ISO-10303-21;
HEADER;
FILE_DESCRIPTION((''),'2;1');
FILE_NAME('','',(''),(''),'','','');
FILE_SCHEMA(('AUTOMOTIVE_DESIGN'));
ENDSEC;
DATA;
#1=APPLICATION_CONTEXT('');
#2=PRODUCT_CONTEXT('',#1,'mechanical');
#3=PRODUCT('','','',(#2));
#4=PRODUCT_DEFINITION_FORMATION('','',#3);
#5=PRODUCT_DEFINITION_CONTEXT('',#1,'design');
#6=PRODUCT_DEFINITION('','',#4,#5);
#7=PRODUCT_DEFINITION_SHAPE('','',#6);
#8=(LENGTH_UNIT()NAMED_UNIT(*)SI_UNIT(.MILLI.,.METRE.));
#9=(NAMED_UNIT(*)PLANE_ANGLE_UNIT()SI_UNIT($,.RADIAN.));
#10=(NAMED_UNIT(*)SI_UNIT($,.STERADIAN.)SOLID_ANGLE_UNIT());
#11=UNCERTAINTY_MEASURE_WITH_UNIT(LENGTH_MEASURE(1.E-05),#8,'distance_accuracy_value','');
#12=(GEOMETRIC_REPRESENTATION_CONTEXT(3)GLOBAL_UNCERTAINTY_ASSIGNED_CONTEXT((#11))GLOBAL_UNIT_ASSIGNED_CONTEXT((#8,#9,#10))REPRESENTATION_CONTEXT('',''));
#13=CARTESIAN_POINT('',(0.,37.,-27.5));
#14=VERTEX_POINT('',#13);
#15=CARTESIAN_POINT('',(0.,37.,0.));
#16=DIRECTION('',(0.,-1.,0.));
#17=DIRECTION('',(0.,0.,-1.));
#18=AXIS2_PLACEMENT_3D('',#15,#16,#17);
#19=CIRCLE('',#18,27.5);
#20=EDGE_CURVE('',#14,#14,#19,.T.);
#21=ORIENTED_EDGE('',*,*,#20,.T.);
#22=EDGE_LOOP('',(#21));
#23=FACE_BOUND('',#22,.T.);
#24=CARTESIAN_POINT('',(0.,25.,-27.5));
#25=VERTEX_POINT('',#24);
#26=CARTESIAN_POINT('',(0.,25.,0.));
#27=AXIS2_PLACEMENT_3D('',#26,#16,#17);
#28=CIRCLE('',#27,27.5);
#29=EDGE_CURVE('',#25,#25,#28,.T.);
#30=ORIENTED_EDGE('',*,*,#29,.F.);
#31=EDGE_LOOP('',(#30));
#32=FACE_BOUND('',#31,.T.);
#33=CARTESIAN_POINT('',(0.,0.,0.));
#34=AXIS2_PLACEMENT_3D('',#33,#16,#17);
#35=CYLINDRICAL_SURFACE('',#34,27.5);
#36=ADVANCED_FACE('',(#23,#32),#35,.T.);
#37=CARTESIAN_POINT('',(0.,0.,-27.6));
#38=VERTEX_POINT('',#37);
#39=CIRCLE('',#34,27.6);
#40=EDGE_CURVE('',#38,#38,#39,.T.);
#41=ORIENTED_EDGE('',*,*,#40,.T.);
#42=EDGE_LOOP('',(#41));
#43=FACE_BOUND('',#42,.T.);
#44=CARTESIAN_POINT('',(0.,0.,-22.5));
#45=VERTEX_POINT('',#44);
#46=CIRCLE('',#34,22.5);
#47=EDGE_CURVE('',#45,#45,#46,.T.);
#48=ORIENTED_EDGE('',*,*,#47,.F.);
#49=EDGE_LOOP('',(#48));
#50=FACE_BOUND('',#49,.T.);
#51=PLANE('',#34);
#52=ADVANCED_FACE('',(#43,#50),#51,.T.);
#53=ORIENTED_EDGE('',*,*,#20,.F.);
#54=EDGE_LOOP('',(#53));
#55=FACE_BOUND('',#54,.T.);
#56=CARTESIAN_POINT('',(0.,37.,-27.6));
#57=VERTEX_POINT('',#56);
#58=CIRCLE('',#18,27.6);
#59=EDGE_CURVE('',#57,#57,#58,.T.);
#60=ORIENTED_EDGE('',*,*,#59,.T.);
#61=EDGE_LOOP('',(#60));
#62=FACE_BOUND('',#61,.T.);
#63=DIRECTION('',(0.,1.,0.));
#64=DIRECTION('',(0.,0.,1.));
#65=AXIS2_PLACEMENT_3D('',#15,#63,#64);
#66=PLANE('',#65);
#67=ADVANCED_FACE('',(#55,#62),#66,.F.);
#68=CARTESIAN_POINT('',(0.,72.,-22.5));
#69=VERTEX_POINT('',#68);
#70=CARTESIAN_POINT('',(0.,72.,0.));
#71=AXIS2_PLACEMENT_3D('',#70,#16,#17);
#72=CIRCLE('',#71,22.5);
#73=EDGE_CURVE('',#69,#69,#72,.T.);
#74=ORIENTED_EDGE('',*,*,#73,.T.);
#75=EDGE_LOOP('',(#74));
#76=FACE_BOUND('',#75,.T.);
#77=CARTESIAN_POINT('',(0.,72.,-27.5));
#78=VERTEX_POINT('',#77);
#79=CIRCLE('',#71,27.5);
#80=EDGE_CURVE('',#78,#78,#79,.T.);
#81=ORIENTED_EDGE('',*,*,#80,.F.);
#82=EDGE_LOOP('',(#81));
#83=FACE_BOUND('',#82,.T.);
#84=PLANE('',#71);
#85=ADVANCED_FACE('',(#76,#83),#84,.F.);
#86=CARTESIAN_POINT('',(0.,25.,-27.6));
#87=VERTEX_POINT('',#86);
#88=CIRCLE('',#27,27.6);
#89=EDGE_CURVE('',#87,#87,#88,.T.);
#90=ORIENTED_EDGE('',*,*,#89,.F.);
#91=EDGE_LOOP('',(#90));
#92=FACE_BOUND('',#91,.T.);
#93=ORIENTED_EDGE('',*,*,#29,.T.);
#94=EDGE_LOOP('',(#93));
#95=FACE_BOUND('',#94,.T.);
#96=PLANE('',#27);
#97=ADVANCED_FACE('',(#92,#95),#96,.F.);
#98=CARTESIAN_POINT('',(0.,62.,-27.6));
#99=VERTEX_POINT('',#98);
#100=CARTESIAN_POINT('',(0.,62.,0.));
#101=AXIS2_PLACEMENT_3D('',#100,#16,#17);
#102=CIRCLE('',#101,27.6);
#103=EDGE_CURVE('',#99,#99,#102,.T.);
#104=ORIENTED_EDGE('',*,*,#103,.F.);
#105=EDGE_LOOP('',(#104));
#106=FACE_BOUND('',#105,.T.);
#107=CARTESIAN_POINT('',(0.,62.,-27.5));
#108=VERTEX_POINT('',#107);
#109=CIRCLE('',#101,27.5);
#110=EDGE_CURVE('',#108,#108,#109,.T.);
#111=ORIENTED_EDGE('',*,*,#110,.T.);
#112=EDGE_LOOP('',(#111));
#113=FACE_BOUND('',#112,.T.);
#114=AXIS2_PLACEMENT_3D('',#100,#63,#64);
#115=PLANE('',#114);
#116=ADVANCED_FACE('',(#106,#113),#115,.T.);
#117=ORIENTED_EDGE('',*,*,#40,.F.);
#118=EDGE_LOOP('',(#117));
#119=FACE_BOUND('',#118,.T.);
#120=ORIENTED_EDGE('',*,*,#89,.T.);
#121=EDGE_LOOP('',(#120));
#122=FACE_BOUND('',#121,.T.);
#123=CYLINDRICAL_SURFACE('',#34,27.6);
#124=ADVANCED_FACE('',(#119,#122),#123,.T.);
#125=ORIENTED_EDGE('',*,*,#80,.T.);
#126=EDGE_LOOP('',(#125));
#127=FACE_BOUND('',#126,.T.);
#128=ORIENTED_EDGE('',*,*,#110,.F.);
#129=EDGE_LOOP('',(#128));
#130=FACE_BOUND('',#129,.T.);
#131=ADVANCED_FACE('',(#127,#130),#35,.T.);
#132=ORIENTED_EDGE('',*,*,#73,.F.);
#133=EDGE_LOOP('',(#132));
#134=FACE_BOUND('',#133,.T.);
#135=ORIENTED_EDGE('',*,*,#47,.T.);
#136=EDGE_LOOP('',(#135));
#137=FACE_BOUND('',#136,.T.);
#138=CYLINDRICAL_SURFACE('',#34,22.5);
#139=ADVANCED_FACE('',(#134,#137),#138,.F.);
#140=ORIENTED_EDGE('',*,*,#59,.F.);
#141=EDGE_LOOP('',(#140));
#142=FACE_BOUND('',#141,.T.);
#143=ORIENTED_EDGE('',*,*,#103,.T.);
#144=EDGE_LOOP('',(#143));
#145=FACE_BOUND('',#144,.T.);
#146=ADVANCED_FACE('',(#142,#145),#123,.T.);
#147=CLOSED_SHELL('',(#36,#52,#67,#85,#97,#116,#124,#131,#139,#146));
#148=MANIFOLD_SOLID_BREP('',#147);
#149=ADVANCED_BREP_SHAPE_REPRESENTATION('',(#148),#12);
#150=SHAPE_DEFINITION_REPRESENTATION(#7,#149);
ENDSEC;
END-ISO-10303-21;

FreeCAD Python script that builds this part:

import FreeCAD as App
import Part
import Sketcher
Q = App.Units.Quantity


def add_polygon(sketch, points):
    """Adds a closed chain of lines whose ends are joined by coincident constraints."""
    first, n = sketch.GeometryCount, len(points)
    for a, b in zip(points, points[1:] + points[:1]):
        sketch.addGeometry(Part.LineSegment(App.Vector(*a, 0), App.Vector(*b, 0)), False)
    for i in range(n):
        sketch.addConstraint(Sketcher.Constraint("Coincident", first + i, 2, first + (i + 1) % n, 1))

doc = App.newDocument("Part")
body = doc.addObject("PartDesign::Body", "Body")

# Sketch on XY plane
sketch1 = body.newObject("Sketcher::SketchObject", "Sketch")
sketch1.AttachmentSupport = (doc.getObject("XY_Plane"), [""])
sketch1.MapMode = "FlatFace"
add_polygon(sketch1, [(22.5, 72), (22.5, 0), (27.6, 0), (27.6, 25), (27.5, 25), (27.5, 37), (27.6, 37), (27.6, 62), (27.5, 62), (27.5, 72)])  # lines 0-9
sketch1.addConstraint([
    Sketcher.Constraint("Vertical", 0),
    Sketcher.Constraint("Horizontal", 1),
    Sketcher.Constraint("Vertical", 2),
    Sketcher.Constraint("Horizontal", 3),
    Sketcher.Constraint("Vertical", 4),
    Sketcher.Constraint("Horizontal", 5),
    Sketcher.Constraint("Vertical", 6),
    Sketcher.Constraint("Horizontal", 7),
    Sketcher.Constraint("Vertical", 8),
    Sketcher.Constraint("Horizontal", 9),
    Sketcher.Constraint("PointOnObject", 0, 2, -1),
    Sketcher.Constraint("Vertical", 2, 2, 5, 2),
    Sketcher.Constraint("Vertical", 4, 2, 7, 2),
    Sketcher.Constraint("Equal", 2, 6),
    Sketcher.Constraint("DistanceX", 9, 2, 9, 1, Q("5 mm")),
    Sketcher.Constraint("DistanceY", 0, 2, 0, 1, Q("72 mm")),
    Sketcher.Constraint("DistanceY", 2, 1, 2, 2, Q("25 mm")),
    Sketcher.Constraint("DistanceY", 4, 1, 4, 2, Q("12 mm")),
    Sketcher.Constraint("DistanceX", 1, 1, 1, 2, Q("5.1 mm")),
    Sketcher.Constraint("DistanceX", -1, 1, 0, 2, Q("22.5 mm")),
])
revolution = body.newObject("PartDesign::Revolution", "Revolution")
revolution.Profile = sketch1
revolution.ReferenceAxis = (sketch1, ["V_Axis"])
revolution.Angle = 360

doc.recompute()
